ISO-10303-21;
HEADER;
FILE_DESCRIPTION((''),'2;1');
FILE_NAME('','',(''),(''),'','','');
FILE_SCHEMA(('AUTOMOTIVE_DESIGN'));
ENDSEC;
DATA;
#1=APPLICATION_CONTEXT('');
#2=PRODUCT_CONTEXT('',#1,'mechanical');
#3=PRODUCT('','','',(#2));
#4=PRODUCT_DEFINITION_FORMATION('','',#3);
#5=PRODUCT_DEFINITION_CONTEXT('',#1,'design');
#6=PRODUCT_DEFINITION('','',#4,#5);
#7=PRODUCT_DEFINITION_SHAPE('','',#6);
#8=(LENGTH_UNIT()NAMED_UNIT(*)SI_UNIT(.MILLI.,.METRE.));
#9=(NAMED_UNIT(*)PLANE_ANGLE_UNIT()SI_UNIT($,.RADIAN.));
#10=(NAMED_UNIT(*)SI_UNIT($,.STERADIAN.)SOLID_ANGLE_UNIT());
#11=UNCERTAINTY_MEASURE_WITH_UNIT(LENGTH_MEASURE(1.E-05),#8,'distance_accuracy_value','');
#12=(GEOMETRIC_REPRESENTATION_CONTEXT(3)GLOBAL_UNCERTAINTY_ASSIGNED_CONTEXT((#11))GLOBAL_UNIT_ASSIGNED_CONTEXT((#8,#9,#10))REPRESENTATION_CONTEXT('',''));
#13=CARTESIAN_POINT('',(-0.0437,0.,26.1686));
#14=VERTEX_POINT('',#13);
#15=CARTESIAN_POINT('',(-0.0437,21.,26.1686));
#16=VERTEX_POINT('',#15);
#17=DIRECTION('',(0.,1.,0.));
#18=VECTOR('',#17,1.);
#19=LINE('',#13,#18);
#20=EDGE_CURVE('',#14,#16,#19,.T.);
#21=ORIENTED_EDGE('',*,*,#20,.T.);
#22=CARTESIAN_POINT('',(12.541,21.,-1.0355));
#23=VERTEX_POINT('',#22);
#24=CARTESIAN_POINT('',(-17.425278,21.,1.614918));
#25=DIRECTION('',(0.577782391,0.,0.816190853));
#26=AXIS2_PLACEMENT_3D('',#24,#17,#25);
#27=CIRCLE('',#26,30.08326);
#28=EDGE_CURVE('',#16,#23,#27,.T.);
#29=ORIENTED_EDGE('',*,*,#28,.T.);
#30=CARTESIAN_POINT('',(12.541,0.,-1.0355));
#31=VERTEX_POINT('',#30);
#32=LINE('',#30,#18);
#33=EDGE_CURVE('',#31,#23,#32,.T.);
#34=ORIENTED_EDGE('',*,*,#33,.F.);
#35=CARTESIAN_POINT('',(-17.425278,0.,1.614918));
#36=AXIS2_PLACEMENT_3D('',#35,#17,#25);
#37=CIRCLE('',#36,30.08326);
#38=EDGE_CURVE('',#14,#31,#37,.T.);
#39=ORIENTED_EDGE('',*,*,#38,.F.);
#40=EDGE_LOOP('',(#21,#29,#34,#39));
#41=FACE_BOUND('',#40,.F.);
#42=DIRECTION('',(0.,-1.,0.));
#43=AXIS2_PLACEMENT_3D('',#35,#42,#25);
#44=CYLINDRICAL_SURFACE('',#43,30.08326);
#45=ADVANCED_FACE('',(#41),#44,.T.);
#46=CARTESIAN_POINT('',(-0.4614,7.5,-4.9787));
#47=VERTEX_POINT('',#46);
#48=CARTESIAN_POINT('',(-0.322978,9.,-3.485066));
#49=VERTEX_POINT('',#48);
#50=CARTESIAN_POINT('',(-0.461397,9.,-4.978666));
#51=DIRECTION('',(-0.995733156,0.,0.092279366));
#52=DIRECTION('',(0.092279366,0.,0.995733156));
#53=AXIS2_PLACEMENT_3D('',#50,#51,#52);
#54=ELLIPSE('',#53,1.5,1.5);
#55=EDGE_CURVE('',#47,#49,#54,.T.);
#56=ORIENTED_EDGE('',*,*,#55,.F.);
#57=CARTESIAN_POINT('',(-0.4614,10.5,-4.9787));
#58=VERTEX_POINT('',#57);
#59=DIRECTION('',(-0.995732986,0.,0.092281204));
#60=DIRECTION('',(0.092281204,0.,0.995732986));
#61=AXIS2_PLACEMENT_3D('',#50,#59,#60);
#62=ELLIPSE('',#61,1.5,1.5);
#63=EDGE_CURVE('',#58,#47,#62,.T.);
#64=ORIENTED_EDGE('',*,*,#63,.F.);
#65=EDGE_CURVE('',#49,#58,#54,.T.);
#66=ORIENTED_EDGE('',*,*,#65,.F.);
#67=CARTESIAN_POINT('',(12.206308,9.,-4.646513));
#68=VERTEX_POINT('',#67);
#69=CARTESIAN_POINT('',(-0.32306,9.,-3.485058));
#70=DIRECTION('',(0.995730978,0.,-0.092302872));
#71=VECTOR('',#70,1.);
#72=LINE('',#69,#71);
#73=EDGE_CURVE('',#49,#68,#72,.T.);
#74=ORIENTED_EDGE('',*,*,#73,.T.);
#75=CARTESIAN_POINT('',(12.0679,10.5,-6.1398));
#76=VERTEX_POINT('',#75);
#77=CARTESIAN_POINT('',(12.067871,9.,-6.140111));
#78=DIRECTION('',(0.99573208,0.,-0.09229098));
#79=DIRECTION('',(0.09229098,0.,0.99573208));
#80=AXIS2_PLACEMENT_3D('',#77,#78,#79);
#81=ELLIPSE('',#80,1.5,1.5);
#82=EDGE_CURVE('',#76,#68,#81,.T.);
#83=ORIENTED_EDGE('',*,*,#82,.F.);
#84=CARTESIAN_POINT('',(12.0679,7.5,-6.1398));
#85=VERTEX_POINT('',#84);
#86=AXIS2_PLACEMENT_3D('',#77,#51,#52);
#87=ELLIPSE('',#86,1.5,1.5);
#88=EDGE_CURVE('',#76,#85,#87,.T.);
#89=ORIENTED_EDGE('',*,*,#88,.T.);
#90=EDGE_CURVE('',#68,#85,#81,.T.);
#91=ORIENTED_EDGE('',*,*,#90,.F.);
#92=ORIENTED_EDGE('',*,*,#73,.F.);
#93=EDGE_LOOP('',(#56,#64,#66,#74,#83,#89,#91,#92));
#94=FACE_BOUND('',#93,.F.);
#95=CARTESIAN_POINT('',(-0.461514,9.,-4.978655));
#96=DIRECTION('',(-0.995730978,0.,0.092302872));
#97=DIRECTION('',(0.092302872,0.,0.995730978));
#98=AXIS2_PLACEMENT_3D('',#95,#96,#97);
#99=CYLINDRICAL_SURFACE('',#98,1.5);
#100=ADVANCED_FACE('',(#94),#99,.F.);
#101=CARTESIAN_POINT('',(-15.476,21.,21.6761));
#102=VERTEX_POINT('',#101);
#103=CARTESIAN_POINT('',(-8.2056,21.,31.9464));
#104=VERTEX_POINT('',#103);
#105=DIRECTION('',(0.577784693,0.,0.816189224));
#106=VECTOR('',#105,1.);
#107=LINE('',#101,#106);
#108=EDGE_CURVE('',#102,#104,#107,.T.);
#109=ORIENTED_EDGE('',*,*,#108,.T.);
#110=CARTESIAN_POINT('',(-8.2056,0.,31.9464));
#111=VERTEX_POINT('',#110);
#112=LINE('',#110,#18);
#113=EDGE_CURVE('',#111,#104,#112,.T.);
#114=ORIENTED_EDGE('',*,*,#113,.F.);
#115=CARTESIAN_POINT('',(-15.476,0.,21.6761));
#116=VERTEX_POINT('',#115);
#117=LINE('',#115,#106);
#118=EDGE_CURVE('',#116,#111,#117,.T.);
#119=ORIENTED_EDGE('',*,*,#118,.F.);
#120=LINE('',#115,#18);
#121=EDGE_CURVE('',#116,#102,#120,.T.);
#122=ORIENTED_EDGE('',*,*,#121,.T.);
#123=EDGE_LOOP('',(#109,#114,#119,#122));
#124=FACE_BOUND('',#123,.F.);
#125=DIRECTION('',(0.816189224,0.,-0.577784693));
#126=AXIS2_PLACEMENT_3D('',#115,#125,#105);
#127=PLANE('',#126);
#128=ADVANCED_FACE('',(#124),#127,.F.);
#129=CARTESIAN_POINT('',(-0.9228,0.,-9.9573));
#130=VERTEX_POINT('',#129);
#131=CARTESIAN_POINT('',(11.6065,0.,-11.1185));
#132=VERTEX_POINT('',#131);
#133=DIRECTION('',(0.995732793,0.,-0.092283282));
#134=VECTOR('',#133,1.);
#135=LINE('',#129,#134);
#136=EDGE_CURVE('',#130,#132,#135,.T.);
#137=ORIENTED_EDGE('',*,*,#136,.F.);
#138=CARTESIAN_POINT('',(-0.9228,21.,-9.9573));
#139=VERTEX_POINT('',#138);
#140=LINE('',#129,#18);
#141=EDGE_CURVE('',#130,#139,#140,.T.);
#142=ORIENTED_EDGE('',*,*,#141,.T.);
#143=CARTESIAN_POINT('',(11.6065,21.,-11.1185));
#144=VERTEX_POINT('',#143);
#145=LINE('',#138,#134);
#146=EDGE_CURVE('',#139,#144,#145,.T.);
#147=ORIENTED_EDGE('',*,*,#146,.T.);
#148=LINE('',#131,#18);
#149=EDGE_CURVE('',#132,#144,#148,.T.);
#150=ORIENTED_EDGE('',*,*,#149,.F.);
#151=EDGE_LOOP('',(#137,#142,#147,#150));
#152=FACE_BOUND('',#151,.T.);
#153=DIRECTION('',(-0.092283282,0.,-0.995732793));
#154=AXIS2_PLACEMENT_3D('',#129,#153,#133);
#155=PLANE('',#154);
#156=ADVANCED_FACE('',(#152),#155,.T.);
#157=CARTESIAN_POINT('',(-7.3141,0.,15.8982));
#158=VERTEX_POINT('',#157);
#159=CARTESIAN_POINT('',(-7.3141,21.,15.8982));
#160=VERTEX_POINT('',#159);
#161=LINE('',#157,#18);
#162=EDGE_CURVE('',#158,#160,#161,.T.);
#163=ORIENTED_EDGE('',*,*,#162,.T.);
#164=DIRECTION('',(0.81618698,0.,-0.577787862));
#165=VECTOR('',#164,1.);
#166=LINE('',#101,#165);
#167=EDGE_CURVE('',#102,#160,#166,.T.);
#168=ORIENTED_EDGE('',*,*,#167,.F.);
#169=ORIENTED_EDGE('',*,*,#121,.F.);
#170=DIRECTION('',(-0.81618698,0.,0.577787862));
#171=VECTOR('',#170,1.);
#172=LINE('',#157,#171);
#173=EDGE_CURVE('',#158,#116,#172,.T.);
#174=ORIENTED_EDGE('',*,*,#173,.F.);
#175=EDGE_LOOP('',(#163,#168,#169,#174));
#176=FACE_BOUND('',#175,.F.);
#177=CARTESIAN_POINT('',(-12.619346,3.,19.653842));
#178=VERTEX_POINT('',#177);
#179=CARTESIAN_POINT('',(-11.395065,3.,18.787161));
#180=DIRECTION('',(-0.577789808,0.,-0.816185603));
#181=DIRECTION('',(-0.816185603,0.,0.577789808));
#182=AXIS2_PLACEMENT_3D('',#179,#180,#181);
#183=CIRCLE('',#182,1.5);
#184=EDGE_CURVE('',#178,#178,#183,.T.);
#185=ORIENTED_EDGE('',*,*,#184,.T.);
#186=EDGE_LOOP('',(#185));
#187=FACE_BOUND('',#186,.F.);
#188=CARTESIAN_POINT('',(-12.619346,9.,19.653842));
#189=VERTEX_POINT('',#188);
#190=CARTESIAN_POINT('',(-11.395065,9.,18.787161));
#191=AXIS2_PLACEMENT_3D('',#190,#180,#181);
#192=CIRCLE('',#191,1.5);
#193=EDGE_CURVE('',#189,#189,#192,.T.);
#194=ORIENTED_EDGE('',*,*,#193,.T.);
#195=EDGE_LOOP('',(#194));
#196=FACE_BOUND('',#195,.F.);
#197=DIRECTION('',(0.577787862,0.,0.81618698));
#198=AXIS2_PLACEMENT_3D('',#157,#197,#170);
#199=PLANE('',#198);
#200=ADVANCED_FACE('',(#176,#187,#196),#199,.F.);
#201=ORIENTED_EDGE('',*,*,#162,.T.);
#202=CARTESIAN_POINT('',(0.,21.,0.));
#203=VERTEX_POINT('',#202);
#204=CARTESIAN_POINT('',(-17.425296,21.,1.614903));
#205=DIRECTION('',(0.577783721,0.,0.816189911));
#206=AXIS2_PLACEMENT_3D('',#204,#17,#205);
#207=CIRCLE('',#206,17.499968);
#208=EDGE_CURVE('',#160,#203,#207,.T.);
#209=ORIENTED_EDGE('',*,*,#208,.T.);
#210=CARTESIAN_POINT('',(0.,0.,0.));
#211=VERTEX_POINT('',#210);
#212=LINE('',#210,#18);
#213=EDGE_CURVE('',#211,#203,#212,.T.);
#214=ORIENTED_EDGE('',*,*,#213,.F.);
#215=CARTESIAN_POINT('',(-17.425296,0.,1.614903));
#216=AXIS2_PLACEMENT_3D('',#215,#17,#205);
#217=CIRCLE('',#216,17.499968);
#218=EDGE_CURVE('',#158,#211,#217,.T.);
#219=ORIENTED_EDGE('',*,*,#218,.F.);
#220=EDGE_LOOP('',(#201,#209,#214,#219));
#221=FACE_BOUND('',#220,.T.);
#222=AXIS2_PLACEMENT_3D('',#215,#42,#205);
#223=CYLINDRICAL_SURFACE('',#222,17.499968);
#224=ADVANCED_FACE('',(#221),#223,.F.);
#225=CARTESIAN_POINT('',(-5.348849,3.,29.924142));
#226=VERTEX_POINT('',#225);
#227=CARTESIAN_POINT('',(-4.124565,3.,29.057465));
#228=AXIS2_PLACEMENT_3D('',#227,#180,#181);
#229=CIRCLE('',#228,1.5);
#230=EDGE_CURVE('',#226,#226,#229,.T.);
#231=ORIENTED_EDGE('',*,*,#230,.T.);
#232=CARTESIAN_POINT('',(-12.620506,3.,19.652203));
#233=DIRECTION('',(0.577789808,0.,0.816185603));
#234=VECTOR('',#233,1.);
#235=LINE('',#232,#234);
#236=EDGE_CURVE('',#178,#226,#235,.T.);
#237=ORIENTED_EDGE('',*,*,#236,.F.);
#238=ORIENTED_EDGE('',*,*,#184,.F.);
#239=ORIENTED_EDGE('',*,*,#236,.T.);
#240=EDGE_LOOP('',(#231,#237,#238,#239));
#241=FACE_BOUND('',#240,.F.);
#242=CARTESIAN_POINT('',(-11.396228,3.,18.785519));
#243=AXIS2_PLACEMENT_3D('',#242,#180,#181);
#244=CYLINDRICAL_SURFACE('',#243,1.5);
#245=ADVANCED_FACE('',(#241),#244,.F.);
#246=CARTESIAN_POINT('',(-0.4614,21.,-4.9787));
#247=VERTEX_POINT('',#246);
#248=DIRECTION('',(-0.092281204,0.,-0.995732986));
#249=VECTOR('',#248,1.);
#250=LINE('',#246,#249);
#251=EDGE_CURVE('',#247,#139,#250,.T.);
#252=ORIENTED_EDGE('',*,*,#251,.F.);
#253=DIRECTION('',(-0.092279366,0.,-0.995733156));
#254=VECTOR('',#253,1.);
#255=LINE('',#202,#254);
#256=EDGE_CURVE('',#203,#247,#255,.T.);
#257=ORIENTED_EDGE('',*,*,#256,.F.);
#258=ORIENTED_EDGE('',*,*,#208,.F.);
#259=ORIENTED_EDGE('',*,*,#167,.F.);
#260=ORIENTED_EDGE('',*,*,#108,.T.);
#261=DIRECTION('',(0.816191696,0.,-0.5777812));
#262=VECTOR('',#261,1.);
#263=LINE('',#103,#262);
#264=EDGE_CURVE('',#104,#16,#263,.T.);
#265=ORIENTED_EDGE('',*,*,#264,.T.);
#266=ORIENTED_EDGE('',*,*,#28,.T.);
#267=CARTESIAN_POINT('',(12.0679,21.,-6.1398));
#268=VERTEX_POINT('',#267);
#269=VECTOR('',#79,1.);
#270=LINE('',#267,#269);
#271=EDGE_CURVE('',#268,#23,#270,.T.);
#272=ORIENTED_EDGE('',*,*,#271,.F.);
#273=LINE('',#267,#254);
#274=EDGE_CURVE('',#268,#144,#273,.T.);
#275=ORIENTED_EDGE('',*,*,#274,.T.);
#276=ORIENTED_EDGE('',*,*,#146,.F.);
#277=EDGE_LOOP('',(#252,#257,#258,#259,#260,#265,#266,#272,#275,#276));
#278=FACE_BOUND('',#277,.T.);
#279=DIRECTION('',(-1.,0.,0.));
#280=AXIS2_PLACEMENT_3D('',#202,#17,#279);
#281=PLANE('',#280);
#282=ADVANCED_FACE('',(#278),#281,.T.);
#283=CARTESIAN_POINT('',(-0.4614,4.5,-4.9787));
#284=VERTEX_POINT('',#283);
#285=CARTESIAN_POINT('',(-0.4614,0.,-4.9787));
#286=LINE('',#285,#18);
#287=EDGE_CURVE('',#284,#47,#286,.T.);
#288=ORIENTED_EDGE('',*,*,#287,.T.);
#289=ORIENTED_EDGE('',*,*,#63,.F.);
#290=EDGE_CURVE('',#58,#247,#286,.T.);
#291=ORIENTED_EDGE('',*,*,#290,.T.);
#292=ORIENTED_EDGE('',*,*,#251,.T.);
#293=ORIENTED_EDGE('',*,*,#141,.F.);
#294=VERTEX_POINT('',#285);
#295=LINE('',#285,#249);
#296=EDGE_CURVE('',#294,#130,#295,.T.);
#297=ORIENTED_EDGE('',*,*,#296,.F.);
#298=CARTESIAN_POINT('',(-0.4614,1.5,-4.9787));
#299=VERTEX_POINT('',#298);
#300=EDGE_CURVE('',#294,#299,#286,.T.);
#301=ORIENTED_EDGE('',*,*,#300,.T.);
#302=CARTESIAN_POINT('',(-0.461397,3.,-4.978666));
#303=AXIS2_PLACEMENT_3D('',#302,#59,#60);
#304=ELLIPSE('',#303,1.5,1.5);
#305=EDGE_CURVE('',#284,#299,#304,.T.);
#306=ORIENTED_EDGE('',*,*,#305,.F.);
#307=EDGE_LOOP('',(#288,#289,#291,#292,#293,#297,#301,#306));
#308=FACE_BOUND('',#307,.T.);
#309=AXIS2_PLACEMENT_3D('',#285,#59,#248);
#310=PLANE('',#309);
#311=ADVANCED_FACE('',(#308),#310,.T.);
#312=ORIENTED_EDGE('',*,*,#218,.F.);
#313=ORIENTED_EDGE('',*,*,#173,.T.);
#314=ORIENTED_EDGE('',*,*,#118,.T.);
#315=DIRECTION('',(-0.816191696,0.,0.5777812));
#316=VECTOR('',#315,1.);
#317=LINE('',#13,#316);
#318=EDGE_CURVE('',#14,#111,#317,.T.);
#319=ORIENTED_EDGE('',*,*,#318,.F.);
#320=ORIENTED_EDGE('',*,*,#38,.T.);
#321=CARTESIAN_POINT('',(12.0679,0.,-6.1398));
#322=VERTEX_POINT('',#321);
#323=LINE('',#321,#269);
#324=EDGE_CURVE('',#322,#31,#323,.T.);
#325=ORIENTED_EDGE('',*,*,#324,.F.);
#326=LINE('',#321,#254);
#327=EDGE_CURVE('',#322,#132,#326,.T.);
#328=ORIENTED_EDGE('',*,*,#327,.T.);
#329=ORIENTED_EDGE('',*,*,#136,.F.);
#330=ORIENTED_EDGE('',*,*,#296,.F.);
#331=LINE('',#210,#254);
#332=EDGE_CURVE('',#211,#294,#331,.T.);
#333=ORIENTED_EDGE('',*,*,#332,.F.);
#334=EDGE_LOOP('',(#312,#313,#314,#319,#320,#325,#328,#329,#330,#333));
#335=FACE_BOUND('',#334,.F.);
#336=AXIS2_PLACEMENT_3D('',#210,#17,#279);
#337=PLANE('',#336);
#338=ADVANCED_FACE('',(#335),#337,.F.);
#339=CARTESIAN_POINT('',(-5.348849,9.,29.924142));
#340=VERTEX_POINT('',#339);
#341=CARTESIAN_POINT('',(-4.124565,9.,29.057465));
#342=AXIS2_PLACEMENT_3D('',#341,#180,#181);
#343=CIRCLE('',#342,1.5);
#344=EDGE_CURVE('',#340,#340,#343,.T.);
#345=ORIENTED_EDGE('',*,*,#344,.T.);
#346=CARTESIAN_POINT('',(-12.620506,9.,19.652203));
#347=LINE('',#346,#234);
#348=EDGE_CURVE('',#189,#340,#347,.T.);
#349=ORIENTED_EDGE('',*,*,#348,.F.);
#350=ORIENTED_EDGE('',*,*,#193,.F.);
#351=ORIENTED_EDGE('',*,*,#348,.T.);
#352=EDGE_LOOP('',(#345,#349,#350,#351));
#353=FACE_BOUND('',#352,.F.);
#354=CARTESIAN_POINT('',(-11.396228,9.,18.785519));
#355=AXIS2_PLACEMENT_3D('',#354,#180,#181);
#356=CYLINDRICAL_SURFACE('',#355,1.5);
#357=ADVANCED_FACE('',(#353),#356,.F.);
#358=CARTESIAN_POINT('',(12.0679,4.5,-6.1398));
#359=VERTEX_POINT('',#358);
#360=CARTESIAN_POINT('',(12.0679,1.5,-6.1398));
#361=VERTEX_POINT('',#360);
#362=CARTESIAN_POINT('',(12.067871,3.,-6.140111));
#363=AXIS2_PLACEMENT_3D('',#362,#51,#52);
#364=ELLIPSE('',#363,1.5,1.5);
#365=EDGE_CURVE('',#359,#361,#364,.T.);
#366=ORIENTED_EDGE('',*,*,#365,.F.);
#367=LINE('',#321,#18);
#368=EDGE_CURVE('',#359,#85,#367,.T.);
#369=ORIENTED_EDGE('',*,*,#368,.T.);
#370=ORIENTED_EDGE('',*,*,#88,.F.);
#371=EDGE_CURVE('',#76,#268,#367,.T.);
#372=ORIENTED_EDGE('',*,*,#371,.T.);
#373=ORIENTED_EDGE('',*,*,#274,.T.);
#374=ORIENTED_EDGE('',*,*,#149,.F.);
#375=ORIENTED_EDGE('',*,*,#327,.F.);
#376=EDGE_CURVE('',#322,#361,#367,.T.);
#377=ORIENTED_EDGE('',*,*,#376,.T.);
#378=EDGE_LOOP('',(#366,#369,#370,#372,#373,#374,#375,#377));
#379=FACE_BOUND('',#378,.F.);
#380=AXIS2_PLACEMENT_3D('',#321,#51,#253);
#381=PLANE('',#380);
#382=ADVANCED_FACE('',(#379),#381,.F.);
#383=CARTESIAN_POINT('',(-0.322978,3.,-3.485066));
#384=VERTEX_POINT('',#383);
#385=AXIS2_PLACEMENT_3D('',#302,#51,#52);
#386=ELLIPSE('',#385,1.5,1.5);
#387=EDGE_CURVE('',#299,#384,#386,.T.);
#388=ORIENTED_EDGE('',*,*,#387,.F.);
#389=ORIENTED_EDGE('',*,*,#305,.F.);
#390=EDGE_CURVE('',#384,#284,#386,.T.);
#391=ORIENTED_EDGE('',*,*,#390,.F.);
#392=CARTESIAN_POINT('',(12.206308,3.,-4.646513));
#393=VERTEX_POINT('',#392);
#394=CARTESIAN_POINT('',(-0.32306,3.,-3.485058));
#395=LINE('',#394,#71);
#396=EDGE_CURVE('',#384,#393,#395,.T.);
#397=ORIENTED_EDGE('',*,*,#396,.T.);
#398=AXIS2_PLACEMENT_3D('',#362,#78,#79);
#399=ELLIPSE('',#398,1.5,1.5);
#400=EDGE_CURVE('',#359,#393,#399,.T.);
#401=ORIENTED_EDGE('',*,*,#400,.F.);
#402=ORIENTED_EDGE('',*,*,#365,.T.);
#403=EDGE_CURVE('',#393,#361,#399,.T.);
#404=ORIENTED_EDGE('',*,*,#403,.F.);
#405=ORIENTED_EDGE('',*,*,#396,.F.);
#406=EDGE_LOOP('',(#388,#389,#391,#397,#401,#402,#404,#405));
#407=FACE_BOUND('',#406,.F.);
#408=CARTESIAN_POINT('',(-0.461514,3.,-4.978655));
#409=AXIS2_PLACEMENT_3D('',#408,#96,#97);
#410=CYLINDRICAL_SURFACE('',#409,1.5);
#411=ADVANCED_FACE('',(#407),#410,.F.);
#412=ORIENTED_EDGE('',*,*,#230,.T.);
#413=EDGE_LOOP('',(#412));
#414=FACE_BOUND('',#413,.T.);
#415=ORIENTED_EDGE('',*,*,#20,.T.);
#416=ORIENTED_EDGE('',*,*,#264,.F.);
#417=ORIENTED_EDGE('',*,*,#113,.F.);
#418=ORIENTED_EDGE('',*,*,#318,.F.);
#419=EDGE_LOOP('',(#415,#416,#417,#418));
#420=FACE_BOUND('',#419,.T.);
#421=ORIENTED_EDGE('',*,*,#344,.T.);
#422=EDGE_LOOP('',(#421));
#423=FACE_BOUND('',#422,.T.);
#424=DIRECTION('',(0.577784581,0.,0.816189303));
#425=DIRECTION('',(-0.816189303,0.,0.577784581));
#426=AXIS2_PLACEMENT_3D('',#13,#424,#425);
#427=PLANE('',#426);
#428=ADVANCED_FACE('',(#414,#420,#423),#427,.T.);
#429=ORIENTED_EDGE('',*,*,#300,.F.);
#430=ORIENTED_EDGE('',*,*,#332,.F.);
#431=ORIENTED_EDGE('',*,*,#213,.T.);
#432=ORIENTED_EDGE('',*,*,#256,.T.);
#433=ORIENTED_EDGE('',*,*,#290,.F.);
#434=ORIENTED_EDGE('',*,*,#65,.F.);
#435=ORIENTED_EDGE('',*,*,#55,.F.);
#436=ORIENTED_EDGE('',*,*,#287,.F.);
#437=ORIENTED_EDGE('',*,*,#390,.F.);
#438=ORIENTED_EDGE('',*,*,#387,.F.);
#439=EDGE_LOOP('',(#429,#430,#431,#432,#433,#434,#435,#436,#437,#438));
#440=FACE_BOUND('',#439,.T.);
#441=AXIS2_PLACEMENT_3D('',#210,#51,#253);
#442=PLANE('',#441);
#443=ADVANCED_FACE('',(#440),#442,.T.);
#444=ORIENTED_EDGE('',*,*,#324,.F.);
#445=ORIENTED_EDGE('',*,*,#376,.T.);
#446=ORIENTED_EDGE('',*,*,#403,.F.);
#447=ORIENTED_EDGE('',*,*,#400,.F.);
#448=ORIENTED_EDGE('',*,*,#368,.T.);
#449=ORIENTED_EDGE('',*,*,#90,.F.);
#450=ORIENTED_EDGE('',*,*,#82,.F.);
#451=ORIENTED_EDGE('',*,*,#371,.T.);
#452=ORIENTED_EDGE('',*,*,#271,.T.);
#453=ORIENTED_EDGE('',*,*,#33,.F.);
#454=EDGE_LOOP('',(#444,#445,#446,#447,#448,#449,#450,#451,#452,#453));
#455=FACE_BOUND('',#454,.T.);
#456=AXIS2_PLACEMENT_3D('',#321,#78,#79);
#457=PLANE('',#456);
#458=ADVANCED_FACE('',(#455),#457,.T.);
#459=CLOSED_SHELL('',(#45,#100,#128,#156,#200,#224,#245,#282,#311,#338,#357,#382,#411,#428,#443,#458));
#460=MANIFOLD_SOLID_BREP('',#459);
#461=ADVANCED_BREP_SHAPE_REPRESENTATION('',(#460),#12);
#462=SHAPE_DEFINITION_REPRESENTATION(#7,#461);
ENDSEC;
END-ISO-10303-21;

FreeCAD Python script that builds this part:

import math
import FreeCAD as App
import Part
import Sketcher

V = App.Vector

doc = App.newDocument("Part")
body = doc.addObject("PartDesign::Body", "Body")

# Sketch on XZ plane
sketch1 = body.newObject("Sketcher::SketchObject", "Sketch")
sketch1.AttachmentSupport = (doc.getObject("XZ_Plane"), [""])
sketch1.MapMode = "FlatFace"
sketch1.addGeometry([
    Part.ArcOfCircle(Part.Circle(V(-17.4253, 1.6149, 0), V(0, 0, 1), 17.499972), math.radians(-5.294796), math.radians(54.705184)),  # 0
    Part.LineSegment(V(-7.3141, 15.8982, 0), V(-15.476, 21.6761, 0)),  # 1
    Part.LineSegment(V(-15.476, 21.6761, 0), V(-8.2056, 31.9464, 0)),  # 2
    Part.LineSegment(V(-8.2056, 31.9464, 0), V(-0.0437, 26.1686, 0)),  # 3
    Part.ArcOfCircle(Part.Circle(V(-17.4253, 1.6149, 0), V(0, 0, 1), 30.083288), math.radians(-5.054431), math.radians(54.705267)),  # 4
    Part.LineSegment(V(12.541, -1.0355, 0), V(12.0679, -6.1398, 0)),  # 5
    Part.LineSegment(V(12.0679, -6.1398, 0), V(11.6065, -11.1185, 0)),  # 6
    Part.LineSegment(V(11.6065, -11.1185, 0), V(-0.9228, -9.9573, 0)),  # 7
    Part.LineSegment(V(-0.9228, -9.9573, 0), V(-0.4614, -4.9787, 0)),  # 8
    Part.LineSegment(V(-0.4614, -4.9787, 0), V(0, 0, 0)),  # 9
], False)
sketch1.addConstraint([
    Sketcher.Constraint("Coincident", 0, 2, 1, 1),
    Sketcher.Constraint("Coincident", 1, 2, 2, 1),
    Sketcher.Constraint("Coincident", 2, 2, 3, 1),
    Sketcher.Constraint("Coincident", 3, 2, 4, 2),
    Sketcher.Constraint("Coincident", 4, 1, 5, 1),
    Sketcher.Constraint("Coincident", 5, 2, 6, 1),
    Sketcher.Constraint("Coincident", 6, 2, 7, 1),
    Sketcher.Constraint("Coincident", 7, 2, 8, 1),
    Sketcher.Constraint("Coincident", 8, 2, 9, 1),
    Sketcher.Constraint("Coincident", 9, 2, 0, 1),
    Sketcher.Constraint("Coincident", 9, 2, -1, 1),
    Sketcher.Constraint("Coincident", 4, 3, 0, 3),
    Sketcher.Constraint("Radius", 0, 17.5),
    Sketcher.Constraint("Distance", 1, 10.0),
    Sketcher.Constraint("Distance", 3, 10.0),
    Sketcher.Constraint("Distance", 6, 5.0),
    Sketcher.Constraint("Distance", 8, 5.0),
    Sketcher.Constraint("Distance", 9, 5.0),
    Sketcher.Constraint("Distance", 7, 12.583),
    Sketcher.Constraint("Distance", 2, 12.5832),
    Sketcher.Constraint("Radius", 4, 30.0833),
    Sketcher.Constraint("DistanceY", -1, 1, 0, 3, 1.615),
    Sketcher.Constraint("DistanceX", 0, 2, -1, 1, 7.314),
    Sketcher.Constraint("DistanceX", 1, 2, -1, 1, 15.476),
    Sketcher.Constraint("DistanceX", -1, 1, 4, 1, 12.541),
    Sketcher.Constraint("DistanceX", -1, 1, 5, 2, 12.068),
    Sketcher.Constraint("DistanceY", 4, 1, 3, 2, 27.204),
    Sketcher.Constraint("DistanceY", 5, 2, 0, 2, 22.038),
    Sketcher.Constraint("DistanceY", 5, 2, 8, 2, 1.161),
    Sketcher.Constraint("DistanceX", 8, 2, 6, 2, 12.068),
])
pad1 = body.newObject("PartDesign::Pad", "Pad")
pad1.Profile = sketch1
pad1.Length = 21
pad1.Reversed = True

# Sketch on an angled plane
sketch2 = body.newObject("Sketcher::SketchObject", "Sketch001")
sketch2.Placement = App.Placement(V(-15.476, 0, 21.6761), App.Rotation(V(-0.816185603, 0, 0.577789808), V(0, 1.000000001, 0), V(-0.577789808, 0, -0.816185603), "ZXY"))
sketch2.addGeometry([
    Part.Circle(V(-5, 3, 0), V(0, 0, 1), 1.5),
    Part.Circle(V(-5, 9, 0), V(0, 0, 1), 1.5),
], False)
sketch2.addConstraint([
    Sketcher.Constraint("Equal", 0, 1),
    Sketcher.Constraint("Vertical", 0, 3, 1, 3),
    Sketcher.Constraint("Diameter", 0, 3.0),
    Sketcher.Constraint("DistanceX", 0, 3, -1, 1, 5.0),
    Sketcher.Constraint("DistanceY", -1, 1, 0, 3, 3.0),
    Sketcher.Constraint("DistanceY", 0, 3, 1, 3, 6.0),
])
pocket1 = body.newObject("PartDesign::Pocket", "Pocket")
pocket1.Profile = sketch2
pocket1.Length = 300

# Sketch on an angled plane
sketch3 = body.newObject("Sketcher::SketchObject", "Sketch002")
sketch3.Placement = App.Placement(V(0, 0, 0), App.Rotation(V(0.092302872, 0, 0.995730978), V(0, 1.000000001, 0), V(-0.995730978, 0, 0.092302872), "ZXY"))
sketch3.addGeometry([
    Part.Circle(V(-5, 9, 0), V(0, 0, 1), 1.5),
    Part.Circle(V(-5, 3, 0), V(0, 0, 1), 1.5),
], False)
sketch3.addConstraint([
    Sketcher.Constraint("Equal", 0, 1),
    Sketcher.Constraint("Vertical", 0, 3, 1, 3),
    Sketcher.Constraint("Diameter", 0, 3.0),
    Sketcher.Constraint("DistanceX", 0, 3, -1, 1, 5.0),
    Sketcher.Constraint("DistanceY", -1, 1, 1, 3, 3.0),
    Sketcher.Constraint("DistanceY", 1, 3, 0, 3, 6.0),
])
pocket2 = body.newObject("PartDesign::Pocket", "Pocket001")
pocket2.Profile = sketch3
pocket2.Type = "ThroughAll"

doc.recompute()
